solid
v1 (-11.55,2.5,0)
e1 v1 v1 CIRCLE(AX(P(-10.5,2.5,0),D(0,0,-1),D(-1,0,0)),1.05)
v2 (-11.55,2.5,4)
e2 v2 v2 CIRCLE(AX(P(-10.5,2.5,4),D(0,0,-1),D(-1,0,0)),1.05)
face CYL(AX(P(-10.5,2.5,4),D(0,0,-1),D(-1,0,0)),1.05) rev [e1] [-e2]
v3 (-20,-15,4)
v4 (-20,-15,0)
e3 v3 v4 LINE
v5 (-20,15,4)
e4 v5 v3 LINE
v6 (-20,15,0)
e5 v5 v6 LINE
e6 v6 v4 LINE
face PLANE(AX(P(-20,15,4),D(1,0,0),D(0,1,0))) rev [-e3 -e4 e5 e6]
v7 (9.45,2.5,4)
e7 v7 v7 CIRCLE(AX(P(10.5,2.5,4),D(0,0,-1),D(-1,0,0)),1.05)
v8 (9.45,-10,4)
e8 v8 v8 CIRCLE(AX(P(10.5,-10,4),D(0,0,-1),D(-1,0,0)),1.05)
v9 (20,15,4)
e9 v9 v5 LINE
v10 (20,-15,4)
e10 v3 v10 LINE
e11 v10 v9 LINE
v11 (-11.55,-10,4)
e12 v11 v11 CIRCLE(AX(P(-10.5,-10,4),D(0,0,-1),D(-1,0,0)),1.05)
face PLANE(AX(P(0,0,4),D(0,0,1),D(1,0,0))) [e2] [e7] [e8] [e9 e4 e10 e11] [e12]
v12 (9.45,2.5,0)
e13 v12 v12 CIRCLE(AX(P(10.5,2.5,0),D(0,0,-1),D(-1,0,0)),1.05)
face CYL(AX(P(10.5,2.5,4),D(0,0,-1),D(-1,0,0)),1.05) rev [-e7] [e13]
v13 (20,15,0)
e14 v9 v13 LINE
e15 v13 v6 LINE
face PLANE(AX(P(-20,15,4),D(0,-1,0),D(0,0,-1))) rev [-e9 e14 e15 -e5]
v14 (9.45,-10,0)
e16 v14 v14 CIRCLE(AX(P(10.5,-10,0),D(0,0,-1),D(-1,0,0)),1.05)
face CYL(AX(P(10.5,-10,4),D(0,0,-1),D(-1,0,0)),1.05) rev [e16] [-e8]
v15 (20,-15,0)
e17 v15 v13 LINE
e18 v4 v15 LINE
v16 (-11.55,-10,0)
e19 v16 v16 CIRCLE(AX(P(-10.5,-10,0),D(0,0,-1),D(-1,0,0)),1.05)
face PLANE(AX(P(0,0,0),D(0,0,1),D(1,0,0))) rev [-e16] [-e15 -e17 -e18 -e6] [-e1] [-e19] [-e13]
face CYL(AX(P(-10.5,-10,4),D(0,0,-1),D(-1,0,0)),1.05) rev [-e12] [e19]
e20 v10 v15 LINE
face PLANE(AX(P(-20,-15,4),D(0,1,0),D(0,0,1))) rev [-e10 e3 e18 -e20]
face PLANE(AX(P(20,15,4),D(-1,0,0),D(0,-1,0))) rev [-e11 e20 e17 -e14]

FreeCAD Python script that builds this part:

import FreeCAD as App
import Part
import Sketcher
from FreeCAD import Vector


def add_polygon(sketch, points):
    """Adds a closed chain of lines whose ends are joined by coincident constraints."""
    first, n = sketch.GeometryCount, len(points)
    for a, b in zip(points, points[1:] + points[:1]):
        sketch.addGeometry(Part.LineSegment(App.Vector(*a, 0), App.Vector(*b, 0)), False)
    for i in range(n):
        sketch.addConstraint(Sketcher.Constraint("Coincident", first + i, 2, first + (i + 1) % n, 1))

doc = App.newDocument("Part")
body = doc.addObject("PartDesign::Body", "Body")

sketch1 = body.newObject("Sketcher::SketchObject", "Sketch")
sketch1.AttachmentSupport = (doc.getObject("XY_Plane"), [""])
sketch1.MapMode = "FlatFace"
add_polygon(sketch1, [(-20, 15), (-20, -15), (20, -15), (20, 15)])
sketch1.addConstraint(Sketcher.Constraint("Vertical", 0))
sketch1.addConstraint(Sketcher.Constraint("Horizontal", 1))
sketch1.addConstraint(Sketcher.Constraint("Vertical", 2))
sketch1.addConstraint(Sketcher.Constraint("Horizontal", 3))
sketch1.addConstraint(Sketcher.Constraint("Symmetric", 0, 2, 2, 2, -1, 1))
sketch1.addConstraint(Sketcher.Constraint("DistanceX", 1, 1, 1, 2, 40.0))
sketch1.addConstraint(Sketcher.Constraint("DistanceY", 0, 2, 0, 1, 30.0))
pad1 = body.newObject("PartDesign::Pad", "Pad")
pad1.Profile = sketch1
pad1.Length = 4

sketch2 = body.newObject("Sketcher::SketchObject", "Sketch001")
sketch2.AttachmentSupport = (doc.getObject("XY_Plane"), [""])
sketch2.MapMode = "FlatFace"
sketch2.addGeometry(Part.Circle(Vector(10.5, 2.5, 0), Vector(0, 0, 1), 1.1), False)
sketch2.addGeometry(Part.Circle(Vector(-10.5, 2.5, 0), Vector(0, 0, 1), 1.1), False)
sketch2.addGeometry(Part.Circle(Vector(10.5, -10, 0), Vector(0, 0, 1), 1.1), False)
sketch2.addGeometry(Part.Circle(Vector(-10.5, -10, 0), Vector(0, 0, 1), 1.1), False)
sketch2.addConstraint(Sketcher.Constraint("Equal", 0, 1))
sketch2.addConstraint(Sketcher.Constraint("Equal", 1, 2))
sketch2.addConstraint(Sketcher.Constraint("Equal", 2, 3))
sketch2.addConstraint(Sketcher.Constraint("Symmetric", 0, 3, 1, 3, -2))
sketch2.addConstraint(Sketcher.Constraint("Symmetric", 2, 3, 3, 3, -2))
sketch2.addConstraint(Sketcher.Constraint("Vertical", 0, 3, 2, 3))
sketch2.addConstraint(Sketcher.Constraint("Diameter", 0, 2.1))
sketch2.addConstraint(Sketcher.Constraint("DistanceY", 2, 3, -1, 1, 10.0))
sketch2.addConstraint(Sketcher.Constraint("DistanceX", 1, 3, 0, 3, 21.0))
sketch2.addConstraint(Sketcher.Constraint("DistanceY", -1, 1, 0, 3, 2.5))
pocket1 = body.newObject("PartDesign::Pocket", "Pocket")
pocket1.Profile = sketch2
pocket1.Type = "ThroughAll"
pocket1.Reversed = True

doc.recompute()
